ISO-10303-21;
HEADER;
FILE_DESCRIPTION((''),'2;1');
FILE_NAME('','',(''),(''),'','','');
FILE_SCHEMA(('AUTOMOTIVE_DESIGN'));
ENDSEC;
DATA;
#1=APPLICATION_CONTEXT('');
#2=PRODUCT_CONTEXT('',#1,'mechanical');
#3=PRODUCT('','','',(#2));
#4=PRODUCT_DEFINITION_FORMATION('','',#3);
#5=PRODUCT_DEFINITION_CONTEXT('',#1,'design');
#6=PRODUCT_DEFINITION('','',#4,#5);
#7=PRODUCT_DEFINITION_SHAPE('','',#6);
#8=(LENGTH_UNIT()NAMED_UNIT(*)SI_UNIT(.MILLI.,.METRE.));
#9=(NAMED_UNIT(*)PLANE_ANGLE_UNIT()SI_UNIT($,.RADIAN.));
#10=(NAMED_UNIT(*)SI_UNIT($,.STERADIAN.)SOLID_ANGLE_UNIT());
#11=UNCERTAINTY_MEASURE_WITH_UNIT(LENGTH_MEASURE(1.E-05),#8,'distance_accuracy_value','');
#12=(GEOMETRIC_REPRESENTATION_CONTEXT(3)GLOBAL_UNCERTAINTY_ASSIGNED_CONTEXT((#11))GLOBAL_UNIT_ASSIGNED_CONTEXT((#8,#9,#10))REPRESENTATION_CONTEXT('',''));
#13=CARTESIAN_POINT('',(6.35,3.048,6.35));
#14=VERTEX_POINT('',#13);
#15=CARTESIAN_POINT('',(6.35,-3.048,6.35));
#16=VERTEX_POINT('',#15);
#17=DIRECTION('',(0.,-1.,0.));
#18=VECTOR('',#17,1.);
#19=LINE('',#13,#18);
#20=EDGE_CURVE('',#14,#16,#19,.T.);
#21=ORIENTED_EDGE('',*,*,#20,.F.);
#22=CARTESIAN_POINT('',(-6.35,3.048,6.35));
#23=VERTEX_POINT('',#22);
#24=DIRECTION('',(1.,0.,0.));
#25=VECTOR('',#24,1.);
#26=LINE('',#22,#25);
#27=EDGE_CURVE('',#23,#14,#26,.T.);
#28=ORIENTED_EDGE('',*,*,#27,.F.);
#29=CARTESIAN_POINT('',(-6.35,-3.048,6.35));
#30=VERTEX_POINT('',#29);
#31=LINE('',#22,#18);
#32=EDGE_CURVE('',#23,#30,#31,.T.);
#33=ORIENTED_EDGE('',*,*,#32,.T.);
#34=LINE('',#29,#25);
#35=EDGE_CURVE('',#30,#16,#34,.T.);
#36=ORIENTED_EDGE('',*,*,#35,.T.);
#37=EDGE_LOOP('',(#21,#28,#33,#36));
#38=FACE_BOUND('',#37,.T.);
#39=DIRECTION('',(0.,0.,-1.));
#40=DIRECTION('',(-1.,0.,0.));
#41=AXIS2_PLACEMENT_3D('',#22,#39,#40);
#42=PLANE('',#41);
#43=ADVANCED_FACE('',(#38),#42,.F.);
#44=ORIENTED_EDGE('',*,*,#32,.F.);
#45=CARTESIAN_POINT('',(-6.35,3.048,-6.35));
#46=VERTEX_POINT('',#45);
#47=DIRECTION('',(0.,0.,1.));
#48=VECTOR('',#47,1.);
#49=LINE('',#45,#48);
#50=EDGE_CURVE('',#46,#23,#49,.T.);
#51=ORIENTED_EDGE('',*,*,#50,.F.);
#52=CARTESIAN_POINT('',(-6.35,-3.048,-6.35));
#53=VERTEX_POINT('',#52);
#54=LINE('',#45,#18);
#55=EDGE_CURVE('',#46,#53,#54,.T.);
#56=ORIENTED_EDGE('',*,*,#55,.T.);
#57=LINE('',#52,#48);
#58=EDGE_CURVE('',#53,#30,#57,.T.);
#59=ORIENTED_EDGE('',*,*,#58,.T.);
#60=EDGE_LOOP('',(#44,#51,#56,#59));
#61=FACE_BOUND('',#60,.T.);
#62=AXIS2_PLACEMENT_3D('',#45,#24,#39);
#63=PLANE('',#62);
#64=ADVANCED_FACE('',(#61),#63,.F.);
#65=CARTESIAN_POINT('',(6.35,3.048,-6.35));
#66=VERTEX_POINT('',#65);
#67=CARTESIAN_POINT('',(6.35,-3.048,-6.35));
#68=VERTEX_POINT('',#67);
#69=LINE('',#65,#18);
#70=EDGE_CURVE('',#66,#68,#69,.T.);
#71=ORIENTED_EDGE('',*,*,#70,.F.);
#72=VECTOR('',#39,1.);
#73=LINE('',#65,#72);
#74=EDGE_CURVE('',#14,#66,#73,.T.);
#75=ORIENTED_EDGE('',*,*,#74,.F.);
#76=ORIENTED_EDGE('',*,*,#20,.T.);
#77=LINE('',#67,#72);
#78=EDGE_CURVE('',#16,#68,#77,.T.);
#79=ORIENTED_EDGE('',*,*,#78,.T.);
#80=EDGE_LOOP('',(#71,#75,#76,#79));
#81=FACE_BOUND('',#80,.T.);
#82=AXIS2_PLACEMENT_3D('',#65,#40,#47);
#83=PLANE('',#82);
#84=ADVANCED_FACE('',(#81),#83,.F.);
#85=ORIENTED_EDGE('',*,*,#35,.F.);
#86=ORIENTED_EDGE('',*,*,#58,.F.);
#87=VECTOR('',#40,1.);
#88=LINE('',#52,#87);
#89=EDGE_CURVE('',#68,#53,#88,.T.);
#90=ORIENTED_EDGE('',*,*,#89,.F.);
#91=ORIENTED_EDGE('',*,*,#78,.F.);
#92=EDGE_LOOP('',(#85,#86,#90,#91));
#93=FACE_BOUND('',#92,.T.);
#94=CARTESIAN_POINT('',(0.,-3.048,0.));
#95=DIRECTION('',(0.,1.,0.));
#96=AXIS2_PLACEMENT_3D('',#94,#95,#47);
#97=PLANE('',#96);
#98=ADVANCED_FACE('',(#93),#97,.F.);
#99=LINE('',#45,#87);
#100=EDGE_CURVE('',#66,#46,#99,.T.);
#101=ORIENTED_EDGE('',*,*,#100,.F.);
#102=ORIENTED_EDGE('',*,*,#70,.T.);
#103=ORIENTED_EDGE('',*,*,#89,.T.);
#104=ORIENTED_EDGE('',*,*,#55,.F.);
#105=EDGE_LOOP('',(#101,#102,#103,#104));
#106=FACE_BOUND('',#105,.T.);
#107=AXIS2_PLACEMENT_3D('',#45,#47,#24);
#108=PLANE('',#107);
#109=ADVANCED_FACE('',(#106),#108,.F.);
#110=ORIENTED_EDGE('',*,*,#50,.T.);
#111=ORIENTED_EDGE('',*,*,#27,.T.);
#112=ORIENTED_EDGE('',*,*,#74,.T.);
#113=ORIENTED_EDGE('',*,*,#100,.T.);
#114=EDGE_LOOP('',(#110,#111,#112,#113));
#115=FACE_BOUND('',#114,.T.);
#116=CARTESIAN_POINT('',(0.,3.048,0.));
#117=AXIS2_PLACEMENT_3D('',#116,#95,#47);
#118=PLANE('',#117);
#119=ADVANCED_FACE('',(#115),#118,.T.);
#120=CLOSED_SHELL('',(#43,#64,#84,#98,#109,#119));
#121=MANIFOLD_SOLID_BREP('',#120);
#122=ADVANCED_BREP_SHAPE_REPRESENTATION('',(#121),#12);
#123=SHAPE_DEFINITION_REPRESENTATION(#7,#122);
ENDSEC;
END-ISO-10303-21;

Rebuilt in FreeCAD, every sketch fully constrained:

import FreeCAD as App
import Part
import Sketcher

V = App.Vector
Q = App.Units.Quantity


def add_polygon(sketch, points):
    """Adds a closed chain of lines whose ends are joined by coincident constraints."""
    first, n = sketch.GeometryCount, len(points)
    for a, b in zip(points, points[1:] + points[:1]):
        sketch.addGeometry(Part.LineSegment(App.Vector(*a, 0), App.Vector(*b, 0)), False)
    for i in range(n):
        sketch.addConstraint(Sketcher.Constraint("Coincident", first + i, 2, first + (i + 1) % n, 1))

doc = App.newDocument("Part")
body = doc.addObject("PartDesign::Body", "Body")

sketch1 = doc.addObject("Sketcher::SketchObject", "Sketch")
body.addObject(sketch1)
sketch1.AttachmentSupport = (doc.XZ_Plane, [""])
sketch1.MapMode = "FlatFace"
add_polygon(sketch1, [(-6, -6), (-6, 6), (6, 6), (6, -6)])
sketch1.addConstraint([
    Sketcher.Constraint("Vertical", 0),
    Sketcher.Constraint("Horizontal", 1),
    Sketcher.Constraint("Vertical", 2),
    Sketcher.Constraint("Horizontal", 3),
    Sketcher.Constraint("Symmetric", 0, 2, 2, 2, -1, 1),
    Sketcher.Constraint("Equal", 3, 0),
    Sketcher.Constraint("DistanceX", 1, 1, 1, 2, Q("0.5 in")),
])
pad1 = doc.addObject("PartDesign::Pad", "Pad")
body.addObject(pad1)
pad1.Profile = sketch1
pad1.Length = Q("0.24 in")
pad1.Midplane = True

doc.recompute()
